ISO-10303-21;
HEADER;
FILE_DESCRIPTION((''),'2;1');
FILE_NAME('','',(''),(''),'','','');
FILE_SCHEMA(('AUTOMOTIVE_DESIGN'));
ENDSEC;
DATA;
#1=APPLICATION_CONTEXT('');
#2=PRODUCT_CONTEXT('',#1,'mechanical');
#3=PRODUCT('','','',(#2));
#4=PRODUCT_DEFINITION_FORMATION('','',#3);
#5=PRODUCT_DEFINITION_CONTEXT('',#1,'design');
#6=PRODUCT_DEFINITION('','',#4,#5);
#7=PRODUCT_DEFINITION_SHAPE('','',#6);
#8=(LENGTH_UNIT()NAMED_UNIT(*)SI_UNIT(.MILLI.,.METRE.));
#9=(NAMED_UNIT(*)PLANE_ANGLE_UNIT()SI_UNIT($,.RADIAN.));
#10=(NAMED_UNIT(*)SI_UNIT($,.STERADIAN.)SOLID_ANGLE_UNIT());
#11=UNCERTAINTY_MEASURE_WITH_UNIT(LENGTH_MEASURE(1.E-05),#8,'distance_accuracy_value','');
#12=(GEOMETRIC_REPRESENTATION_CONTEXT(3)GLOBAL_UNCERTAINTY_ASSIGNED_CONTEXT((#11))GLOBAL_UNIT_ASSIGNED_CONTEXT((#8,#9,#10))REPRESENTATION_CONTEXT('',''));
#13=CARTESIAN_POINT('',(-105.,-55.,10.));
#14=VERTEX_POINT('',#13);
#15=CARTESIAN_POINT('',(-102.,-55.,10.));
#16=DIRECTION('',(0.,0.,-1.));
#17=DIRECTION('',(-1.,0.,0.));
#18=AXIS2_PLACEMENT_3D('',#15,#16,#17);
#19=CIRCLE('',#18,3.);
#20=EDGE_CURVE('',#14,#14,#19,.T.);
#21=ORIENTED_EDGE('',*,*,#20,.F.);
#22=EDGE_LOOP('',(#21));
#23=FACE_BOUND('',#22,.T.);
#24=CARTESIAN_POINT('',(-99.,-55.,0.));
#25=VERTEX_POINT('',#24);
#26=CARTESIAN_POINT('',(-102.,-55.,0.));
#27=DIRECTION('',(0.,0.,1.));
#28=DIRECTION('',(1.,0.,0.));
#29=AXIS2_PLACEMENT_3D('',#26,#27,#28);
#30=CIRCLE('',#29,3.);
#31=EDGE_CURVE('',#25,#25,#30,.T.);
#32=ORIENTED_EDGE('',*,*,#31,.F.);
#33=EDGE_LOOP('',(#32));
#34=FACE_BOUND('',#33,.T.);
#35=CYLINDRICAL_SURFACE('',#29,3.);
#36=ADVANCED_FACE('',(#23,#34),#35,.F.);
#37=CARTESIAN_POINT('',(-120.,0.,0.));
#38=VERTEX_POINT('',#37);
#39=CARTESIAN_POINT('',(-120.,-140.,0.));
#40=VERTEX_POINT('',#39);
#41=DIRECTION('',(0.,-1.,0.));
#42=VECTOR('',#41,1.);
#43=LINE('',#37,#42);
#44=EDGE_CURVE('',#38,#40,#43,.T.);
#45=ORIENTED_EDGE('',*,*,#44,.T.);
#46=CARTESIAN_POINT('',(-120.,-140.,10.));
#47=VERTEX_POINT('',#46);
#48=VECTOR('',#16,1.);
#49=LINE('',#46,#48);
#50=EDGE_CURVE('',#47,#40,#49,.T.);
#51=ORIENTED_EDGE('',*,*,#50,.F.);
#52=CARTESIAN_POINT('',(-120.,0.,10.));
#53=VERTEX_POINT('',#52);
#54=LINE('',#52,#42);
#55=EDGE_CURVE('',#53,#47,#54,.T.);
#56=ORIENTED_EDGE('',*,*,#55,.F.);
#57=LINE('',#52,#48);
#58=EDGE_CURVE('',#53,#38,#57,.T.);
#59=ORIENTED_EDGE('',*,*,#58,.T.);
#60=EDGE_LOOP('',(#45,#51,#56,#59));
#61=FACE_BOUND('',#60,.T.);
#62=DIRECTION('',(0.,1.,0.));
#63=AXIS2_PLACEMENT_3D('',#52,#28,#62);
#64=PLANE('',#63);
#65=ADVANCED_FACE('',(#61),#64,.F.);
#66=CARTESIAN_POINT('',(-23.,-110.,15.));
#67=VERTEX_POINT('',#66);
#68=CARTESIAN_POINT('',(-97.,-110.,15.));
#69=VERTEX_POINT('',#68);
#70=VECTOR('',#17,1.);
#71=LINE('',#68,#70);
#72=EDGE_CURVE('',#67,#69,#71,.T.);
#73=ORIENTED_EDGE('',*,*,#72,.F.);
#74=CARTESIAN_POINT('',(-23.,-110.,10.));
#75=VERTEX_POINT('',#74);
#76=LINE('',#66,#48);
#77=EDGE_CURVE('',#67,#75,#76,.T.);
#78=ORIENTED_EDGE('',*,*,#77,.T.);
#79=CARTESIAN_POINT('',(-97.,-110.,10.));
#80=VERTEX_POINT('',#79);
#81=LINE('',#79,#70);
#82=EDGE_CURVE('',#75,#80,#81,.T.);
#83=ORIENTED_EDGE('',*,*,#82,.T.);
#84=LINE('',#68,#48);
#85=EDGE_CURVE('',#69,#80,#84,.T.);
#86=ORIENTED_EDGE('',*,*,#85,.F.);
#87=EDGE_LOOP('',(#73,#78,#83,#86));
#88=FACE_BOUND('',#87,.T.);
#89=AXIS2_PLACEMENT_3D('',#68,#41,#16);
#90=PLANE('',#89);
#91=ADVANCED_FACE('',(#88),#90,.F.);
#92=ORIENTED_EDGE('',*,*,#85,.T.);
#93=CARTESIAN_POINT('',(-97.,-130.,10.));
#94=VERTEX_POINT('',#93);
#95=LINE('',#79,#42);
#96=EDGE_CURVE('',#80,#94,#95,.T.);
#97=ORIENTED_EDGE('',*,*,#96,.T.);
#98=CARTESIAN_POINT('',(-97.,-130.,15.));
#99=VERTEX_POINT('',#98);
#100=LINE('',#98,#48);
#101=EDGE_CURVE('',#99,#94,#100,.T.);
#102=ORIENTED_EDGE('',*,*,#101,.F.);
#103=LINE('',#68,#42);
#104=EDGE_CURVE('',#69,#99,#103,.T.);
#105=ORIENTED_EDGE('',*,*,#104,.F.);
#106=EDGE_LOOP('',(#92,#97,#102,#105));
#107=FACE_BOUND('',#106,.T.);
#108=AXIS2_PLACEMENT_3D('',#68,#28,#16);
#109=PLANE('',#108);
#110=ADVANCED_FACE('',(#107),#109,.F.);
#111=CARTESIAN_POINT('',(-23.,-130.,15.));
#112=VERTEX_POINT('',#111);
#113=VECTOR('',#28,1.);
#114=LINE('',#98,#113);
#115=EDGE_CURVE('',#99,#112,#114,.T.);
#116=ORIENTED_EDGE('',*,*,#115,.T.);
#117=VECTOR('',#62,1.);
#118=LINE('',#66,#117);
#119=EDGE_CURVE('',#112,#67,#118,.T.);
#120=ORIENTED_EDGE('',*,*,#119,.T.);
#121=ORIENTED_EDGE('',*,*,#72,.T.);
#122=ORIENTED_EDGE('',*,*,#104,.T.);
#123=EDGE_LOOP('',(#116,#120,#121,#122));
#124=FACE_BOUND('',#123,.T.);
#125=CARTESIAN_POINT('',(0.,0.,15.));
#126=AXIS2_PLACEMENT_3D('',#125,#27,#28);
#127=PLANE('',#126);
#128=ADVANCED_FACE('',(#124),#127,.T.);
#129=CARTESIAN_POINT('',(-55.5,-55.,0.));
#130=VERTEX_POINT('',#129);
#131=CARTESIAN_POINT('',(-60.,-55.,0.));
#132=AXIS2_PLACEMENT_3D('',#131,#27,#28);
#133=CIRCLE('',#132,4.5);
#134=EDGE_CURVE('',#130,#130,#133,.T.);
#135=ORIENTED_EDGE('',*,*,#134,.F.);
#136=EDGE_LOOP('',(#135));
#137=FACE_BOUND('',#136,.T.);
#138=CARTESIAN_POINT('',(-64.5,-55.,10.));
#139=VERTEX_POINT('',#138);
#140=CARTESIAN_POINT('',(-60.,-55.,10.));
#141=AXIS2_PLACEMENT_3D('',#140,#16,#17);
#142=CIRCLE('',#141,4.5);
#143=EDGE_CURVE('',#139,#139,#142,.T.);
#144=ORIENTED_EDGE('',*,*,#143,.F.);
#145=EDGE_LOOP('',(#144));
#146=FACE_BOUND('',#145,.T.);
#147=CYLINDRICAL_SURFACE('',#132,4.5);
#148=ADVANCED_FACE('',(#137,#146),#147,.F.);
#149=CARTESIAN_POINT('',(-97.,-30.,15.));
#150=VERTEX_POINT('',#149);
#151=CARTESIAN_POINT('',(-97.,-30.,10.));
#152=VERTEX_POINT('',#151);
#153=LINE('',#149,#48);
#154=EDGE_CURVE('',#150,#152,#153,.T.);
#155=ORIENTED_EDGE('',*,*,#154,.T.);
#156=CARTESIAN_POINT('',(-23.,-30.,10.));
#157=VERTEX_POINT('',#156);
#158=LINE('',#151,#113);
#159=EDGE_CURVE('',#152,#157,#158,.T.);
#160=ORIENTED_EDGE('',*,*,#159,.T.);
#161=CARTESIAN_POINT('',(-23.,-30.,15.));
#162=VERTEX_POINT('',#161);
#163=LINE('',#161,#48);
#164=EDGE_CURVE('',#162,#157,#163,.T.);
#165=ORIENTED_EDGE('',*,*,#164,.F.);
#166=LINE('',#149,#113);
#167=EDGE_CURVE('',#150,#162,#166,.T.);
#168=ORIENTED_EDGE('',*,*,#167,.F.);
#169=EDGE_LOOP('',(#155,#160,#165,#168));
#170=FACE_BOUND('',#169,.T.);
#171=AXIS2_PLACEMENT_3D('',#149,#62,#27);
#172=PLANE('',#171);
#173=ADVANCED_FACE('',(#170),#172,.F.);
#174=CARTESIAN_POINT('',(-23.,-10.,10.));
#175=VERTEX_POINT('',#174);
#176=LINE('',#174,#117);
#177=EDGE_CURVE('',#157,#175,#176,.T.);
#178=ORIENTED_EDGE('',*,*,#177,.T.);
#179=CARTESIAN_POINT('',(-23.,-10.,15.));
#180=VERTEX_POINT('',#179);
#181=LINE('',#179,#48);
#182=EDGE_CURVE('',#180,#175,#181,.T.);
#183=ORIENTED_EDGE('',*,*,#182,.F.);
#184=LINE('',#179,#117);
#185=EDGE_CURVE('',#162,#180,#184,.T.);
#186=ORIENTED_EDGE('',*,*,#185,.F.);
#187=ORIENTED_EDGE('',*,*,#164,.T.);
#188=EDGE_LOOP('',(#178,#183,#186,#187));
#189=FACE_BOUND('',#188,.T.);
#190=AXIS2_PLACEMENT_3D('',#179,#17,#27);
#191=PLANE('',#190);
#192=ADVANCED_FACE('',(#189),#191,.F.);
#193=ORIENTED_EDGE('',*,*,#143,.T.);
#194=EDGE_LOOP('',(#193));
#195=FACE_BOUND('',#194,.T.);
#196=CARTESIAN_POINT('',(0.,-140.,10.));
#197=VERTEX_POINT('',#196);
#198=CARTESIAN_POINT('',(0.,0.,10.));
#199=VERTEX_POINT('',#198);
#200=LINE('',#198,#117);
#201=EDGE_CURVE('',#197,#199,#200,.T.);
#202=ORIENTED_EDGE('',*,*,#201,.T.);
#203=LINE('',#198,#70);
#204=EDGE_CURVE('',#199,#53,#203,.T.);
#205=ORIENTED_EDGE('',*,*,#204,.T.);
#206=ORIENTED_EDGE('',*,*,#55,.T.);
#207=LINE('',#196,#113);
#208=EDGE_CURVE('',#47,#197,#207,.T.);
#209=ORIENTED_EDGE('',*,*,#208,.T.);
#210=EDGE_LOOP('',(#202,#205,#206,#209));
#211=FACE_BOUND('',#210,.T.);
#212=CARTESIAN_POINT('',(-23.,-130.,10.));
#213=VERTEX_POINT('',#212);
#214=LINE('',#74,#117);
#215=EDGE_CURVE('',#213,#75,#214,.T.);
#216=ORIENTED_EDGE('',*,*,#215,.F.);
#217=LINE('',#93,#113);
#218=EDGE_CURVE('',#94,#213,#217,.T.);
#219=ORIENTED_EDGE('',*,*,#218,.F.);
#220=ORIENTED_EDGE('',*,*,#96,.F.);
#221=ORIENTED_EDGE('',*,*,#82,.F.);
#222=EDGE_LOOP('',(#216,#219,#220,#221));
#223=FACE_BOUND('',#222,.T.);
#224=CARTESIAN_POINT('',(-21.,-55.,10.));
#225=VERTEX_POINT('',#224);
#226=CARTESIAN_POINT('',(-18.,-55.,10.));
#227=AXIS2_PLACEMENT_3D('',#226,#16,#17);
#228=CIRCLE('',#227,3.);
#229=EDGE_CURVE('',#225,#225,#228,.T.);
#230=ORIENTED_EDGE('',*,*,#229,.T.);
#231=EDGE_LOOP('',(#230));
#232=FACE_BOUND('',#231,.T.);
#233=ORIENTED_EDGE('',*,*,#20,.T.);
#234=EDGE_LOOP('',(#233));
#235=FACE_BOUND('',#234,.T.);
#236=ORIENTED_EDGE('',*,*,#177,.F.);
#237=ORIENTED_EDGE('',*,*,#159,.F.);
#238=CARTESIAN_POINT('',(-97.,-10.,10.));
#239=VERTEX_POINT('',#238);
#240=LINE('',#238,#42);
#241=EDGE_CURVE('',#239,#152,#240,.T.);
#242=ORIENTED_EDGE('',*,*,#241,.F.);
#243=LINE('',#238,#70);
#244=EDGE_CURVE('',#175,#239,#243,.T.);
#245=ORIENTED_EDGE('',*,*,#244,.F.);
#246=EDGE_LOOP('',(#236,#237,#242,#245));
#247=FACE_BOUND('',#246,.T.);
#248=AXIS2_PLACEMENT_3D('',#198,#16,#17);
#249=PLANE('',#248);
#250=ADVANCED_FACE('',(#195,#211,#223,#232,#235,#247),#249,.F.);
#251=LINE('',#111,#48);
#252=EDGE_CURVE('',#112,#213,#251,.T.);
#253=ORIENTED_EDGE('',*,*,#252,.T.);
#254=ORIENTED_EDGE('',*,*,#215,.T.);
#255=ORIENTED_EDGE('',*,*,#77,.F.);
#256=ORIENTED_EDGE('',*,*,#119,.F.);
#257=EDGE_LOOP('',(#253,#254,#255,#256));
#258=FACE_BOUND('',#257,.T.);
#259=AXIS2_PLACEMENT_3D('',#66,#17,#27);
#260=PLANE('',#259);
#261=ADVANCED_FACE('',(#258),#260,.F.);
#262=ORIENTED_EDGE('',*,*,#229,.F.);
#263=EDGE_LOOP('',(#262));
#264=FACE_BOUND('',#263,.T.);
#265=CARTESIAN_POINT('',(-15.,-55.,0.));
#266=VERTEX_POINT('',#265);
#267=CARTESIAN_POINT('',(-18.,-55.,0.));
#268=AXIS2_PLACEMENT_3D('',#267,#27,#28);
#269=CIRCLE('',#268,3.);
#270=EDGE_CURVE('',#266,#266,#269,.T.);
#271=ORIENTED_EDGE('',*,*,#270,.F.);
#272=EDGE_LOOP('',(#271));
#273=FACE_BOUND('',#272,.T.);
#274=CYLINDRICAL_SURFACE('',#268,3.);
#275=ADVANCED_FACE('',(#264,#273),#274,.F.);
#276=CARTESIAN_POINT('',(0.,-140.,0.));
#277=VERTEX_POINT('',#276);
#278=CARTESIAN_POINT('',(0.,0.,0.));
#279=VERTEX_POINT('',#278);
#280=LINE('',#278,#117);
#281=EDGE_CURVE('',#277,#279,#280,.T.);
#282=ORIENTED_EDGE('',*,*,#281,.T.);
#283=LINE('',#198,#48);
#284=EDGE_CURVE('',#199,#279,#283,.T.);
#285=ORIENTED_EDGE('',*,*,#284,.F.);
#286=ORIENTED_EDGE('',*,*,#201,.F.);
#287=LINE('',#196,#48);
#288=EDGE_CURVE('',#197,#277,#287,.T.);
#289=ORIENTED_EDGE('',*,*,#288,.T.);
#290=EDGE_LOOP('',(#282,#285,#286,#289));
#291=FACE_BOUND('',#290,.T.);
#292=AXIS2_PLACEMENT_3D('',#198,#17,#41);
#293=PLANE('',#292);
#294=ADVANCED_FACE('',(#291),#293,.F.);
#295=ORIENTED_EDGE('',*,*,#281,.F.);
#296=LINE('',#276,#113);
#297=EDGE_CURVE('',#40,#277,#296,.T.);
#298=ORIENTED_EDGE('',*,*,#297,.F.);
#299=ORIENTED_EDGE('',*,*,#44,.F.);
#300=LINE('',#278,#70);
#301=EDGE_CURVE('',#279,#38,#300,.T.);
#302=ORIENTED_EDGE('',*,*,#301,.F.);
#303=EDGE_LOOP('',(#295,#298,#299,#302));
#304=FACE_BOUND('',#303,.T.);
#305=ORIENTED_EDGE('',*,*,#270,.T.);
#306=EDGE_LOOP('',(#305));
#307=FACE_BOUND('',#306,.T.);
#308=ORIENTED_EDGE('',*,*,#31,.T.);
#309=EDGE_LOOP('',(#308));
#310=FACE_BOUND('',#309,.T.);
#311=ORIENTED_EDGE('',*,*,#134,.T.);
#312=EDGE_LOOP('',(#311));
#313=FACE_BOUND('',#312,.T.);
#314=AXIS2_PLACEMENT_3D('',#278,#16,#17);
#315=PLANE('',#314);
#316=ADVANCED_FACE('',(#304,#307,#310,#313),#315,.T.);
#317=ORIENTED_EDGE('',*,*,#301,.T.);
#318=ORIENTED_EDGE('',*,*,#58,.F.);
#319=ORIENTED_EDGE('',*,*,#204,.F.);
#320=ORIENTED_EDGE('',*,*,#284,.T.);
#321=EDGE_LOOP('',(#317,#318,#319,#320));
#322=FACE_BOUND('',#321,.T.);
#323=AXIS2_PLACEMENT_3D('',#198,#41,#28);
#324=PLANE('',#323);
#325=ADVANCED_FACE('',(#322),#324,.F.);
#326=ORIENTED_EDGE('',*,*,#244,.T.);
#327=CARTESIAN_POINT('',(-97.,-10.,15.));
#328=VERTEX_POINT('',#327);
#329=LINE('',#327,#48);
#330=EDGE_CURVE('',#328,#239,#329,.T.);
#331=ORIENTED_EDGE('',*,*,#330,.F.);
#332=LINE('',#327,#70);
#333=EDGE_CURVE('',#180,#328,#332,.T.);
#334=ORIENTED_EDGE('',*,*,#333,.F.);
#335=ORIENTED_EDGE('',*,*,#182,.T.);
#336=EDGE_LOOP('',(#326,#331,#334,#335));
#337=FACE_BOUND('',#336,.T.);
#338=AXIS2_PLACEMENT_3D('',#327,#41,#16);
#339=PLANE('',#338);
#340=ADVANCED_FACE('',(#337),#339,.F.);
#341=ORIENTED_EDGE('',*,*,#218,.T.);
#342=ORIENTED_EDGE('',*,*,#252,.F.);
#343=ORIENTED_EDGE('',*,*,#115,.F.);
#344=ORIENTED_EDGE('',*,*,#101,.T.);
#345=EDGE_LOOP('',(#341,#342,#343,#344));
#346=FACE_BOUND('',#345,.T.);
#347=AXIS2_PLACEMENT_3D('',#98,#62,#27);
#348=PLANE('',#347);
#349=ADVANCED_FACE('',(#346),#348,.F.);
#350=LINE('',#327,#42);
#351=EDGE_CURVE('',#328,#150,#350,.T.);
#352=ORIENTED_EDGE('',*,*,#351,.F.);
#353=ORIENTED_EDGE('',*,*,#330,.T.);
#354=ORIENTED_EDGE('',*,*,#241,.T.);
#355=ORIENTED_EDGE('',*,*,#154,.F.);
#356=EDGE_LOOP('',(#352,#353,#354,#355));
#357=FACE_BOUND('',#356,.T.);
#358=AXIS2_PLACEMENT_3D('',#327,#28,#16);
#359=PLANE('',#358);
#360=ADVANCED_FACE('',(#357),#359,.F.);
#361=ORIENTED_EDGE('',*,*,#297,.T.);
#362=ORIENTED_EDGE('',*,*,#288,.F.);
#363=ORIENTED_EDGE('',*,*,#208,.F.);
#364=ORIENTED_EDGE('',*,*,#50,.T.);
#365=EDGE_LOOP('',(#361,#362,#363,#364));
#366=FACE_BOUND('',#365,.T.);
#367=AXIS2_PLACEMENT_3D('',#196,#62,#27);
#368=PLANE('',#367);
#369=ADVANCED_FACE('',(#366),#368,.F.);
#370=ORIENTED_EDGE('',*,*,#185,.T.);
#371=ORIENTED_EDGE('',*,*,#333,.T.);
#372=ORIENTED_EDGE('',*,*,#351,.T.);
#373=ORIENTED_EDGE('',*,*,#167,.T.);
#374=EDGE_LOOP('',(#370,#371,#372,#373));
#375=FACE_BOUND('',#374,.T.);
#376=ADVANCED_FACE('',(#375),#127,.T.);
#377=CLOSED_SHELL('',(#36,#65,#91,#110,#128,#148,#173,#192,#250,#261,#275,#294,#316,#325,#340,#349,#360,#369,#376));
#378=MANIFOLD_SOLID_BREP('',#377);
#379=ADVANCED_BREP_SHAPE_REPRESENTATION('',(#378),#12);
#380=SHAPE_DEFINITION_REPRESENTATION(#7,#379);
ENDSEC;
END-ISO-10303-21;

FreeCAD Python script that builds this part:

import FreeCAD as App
import Part
import Sketcher
from FreeCAD import Vector

doc = App.newDocument("Part")
body = doc.addObject("PartDesign::Body", "Body")

# Sketch on XY plane
sketch1 = body.newObject("Sketcher::SketchObject", "Sketch")
sketch1.AttachmentSupport = (doc.getObject("XY_Plane"), [""])
sketch1.MapMode = "FlatFace"
sketch1.addGeometry(Part.LineSegment(Vector(-120, 0, 0), Vector(-120, -140, 0)), False)
sketch1.addGeometry(Part.LineSegment(Vector(-120, -140, 0), Vector(0, -140, 0)), False)
sketch1.addGeometry(Part.LineSegment(Vector(0, -140, 0), Vector(0, 0, 0)), False)
sketch1.addGeometry(Part.LineSegment(Vector(0, 0, 0), Vector(-120, 0, 0)), False)
sketch1.addConstraint(Sketcher.Constraint("Coincident", 0, 2, 1, 1))
sketch1.addConstraint(Sketcher.Constraint("Coincident", 1, 2, 2, 1))
sketch1.addConstraint(Sketcher.Constraint("Coincident", 2, 2, 3, 1))
sketch1.addConstraint(Sketcher.Constraint("Coincident", 3, 2, 0, 1))
sketch1.addConstraint(Sketcher.Constraint("Vertical", 0))
sketch1.addConstraint(Sketcher.Constraint("Horizontal", 1))
sketch1.addConstraint(Sketcher.Constraint("Vertical", 2))
sketch1.addConstraint(Sketcher.Constraint("Horizontal", 3))
sketch1.addConstraint(Sketcher.Constraint("Coincident", 2, 2, -1, 1))
sketch1.addConstraint(Sketcher.Constraint("DistanceX", 1, 1, 1, 2, 120.0))
sketch1.addConstraint(Sketcher.Constraint("DistanceY", 0, 2, 0, 1, 140.0))
pad1 = body.newObject("PartDesign::Pad", "Pad")
pad1.Profile = sketch1
pad1.Length = 10

# Sketch on XY plane
sketch2 = body.newObject("Sketcher::SketchObject", "Sketch001")
sketch2.AttachmentSupport = (doc.getObject("XY_Plane"), [""])
sketch2.MapMode = "FlatFace"
sketch2.AttachmentOffset = App.Placement(Vector(0, 0, 10), App.Rotation())
sketch2.addGeometry(Part.LineSegment(Vector(-97, -10, 0), Vector(-97, -30, 0)), False)
sketch2.addGeometry(Part.LineSegment(Vector(-97, -30, 0), Vector(-23, -30, 0)), False)
sketch2.addGeometry(Part.LineSegment(Vector(-23, -30, 0), Vector(-23, -10, 0)), False)
sketch2.addGeometry(Part.LineSegment(Vector(-23, -10, 0), Vector(-97, -10, 0)), False)
sketch2.addGeometry(Part.LineSegment(Vector(-97, -110, 0), Vector(-97, -130, 0)), False)
sketch2.addGeometry(Part.LineSegment(Vector(-97, -130, 0), Vector(-23, -130, 0)), False)
sketch2.addGeometry(Part.LineSegment(Vector(-23, -130, 0), Vector(-23, -110, 0)), False)
sketch2.addGeometry(Part.LineSegment(Vector(-23, -110, 0), Vector(-97, -110, 0)), False)
sketch2.addConstraint(Sketcher.Constraint("Coincident", 0, 2, 1, 1))
sketch2.addConstraint(Sketcher.Constraint("Coincident", 1, 2, 2, 1))
sketch2.addConstraint(Sketcher.Constraint("Coincident", 2, 2, 3, 1))
sketch2.addConstraint(Sketcher.Constraint("Coincident", 3, 2, 0, 1))
sketch2.addConstraint(Sketcher.Constraint("Coincident", 4, 2, 5, 1))
sketch2.addConstraint(Sketcher.Constraint("Coincident", 5, 2, 6, 1))
sketch2.addConstraint(Sketcher.Constraint("Coincident", 6, 2, 7, 1))
sketch2.addConstraint(Sketcher.Constraint("Coincident", 7, 2, 4, 1))
sketch2.addConstraint(Sketcher.Constraint("Vertical", 0))
sketch2.addConstraint(Sketcher.Constraint("Horizontal", 1))
sketch2.addConstraint(Sketcher.Constraint("Vertical", 2))
sketch2.addConstraint(Sketcher.Constraint("Horizontal", 3))
sketch2.addConstraint(Sketcher.Constraint("Vertical", 4))
sketch2.addConstraint(Sketcher.Constraint("Horizontal", 5))
sketch2.addConstraint(Sketcher.Constraint("Vertical", 6))
sketch2.addConstraint(Sketcher.Constraint("Horizontal", 7))
sketch2.addConstraint(Sketcher.Constraint("Vertical", 3, 2, 4, 2))
sketch2.addConstraint(Sketcher.Constraint("Vertical", 2, 2, 5, 2))
sketch2.addConstraint(Sketcher.Constraint("Equal", 2, 4))
sketch2.addConstraint(Sketcher.Constraint("DistanceX", 1, 1, 1, 2, 74.0))
sketch2.addConstraint(Sketcher.Constraint("DistanceY", 0, 2, 0, 1, 20.0))
sketch2.addConstraint(Sketcher.Constraint("DistanceX", 0, 2, -1, 1, 97.0))
sketch2.addConstraint(Sketcher.Constraint("DistanceY", 0, 2, -1, 1, 30.0))
sketch2.addConstraint(Sketcher.Constraint("DistanceY", 4, 2, -1, 1, 130.0))
pad2 = body.newObject("PartDesign::Pad", "Pad001")
pad2.Profile = sketch2
pad2.Length = 5

# Sketch on XY plane
sketch3 = body.newObject("Sketcher::SketchObject", "Sketch002")
sketch3.AttachmentSupport = (doc.getObject("XY_Plane"), [""])
sketch3.MapMode = "FlatFace"
sketch3.AttachmentOffset = App.Placement(Vector(0, 0, 15), App.Rotation())
sketch3.addGeometry(Part.Circle(Vector(-102, -55, 0), Vector(0, 0, 1), 3), False)
sketch3.addGeometry(Part.Circle(Vector(-60, -55, 0), Vector(0, 0, 1), 4.5), False)
sketch3.addGeometry(Part.Circle(Vector(-18, -55, 0), Vector(0, 0, 1), 3), False)
sketch3.addConstraint(Sketcher.Constraint("Equal", 0, 2))
sketch3.addConstraint(Sketcher.Constraint("Horizontal", 0, 3, 1, 3))
sketch3.addConstraint(Sketcher.Constraint("Horizontal", 1, 3, 2, 3))
sketch3.addConstraint(Sketcher.Constraint("Diameter", 0, 6.0))
sketch3.addConstraint(Sketcher.Constraint("Diameter", 1, 9.0))
sketch3.addConstraint(Sketcher.Constraint("DistanceX", 0, 3, -1, 1, 102.0))
sketch3.addConstraint(Sketcher.Constraint("DistanceY", 0, 3, -1, 1, 55.0))
sketch3.addConstraint(Sketcher.Constraint("DistanceX", 1, 3, -1, 1, 60.0))
sketch3.addConstraint(Sketcher.Constraint("DistanceX", 2, 3, -1, 1, 18.0))
pocket1 = body.newObject("PartDesign::Pocket", "Pocket")
pocket1.Profile = sketch3
pocket1.Length = 15

doc.recompute()
